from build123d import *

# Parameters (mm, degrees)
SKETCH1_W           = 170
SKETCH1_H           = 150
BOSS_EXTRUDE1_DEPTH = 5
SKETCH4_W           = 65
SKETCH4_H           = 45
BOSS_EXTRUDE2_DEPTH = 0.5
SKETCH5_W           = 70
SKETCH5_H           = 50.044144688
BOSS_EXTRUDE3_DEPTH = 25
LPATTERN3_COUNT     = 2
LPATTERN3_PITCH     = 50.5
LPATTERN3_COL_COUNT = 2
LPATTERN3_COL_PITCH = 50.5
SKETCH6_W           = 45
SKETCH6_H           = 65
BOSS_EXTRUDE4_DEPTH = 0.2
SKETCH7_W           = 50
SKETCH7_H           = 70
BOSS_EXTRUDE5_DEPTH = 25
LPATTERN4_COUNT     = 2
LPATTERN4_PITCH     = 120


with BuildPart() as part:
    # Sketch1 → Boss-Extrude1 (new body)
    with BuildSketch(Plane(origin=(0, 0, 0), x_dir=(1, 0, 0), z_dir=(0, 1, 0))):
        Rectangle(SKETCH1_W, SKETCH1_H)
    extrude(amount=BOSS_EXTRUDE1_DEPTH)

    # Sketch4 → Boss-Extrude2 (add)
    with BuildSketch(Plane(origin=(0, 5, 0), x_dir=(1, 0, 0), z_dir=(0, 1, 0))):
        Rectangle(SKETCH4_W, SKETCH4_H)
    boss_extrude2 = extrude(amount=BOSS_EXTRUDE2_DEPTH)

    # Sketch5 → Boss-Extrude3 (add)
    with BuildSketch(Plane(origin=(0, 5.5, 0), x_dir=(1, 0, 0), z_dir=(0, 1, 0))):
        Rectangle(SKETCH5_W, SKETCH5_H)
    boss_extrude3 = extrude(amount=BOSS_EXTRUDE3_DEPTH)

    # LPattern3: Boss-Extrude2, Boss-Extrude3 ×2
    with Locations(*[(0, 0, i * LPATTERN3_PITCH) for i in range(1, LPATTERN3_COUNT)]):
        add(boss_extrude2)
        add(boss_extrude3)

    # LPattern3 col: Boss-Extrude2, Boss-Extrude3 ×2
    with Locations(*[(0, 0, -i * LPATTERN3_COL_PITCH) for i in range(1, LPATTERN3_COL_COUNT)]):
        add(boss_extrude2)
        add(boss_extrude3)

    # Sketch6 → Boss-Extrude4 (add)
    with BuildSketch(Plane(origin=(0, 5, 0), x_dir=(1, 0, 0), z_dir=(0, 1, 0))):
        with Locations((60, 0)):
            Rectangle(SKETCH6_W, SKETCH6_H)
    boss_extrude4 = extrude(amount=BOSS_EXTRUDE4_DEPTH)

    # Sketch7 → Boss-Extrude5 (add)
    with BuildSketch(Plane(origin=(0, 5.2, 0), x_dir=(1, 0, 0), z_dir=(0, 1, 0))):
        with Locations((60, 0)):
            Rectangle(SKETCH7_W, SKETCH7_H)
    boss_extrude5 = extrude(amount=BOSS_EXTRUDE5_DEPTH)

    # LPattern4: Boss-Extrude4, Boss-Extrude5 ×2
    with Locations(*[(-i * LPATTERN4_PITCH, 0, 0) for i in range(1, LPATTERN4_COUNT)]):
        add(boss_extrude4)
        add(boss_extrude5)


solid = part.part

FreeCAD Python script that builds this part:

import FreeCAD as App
import Part
import Sketcher
from FreeCAD import Vector


def add_polygon(sketch, points):
    """Adds a closed chain of lines whose ends are joined by coincident constraints."""
    first, n = sketch.GeometryCount, len(points)
    for a, b in zip(points, points[1:] + points[:1]):
        sketch.addGeometry(Part.LineSegment(App.Vector(*a, 0), App.Vector(*b, 0)), False)
    for i in range(n):
        sketch.addConstraint(Sketcher.Constraint("Coincident", first + i, 2, first + (i + 1) % n, 1))

doc = App.newDocument("Part")
body = doc.addObject("PartDesign::Body", "Body")

sketch1 = doc.addObject("Sketcher::SketchObject", "Sketch")
body.addObject(sketch1)
sketch1.AttachmentSupport = (doc.XZ_Plane, [""])
sketch1.MapMode = "FlatFace"
add_polygon(sketch1, [(-85, -75), (-85, 75), (85, 75), (85, -75)])
sketch1.addConstraint([
    Sketcher.Constraint("Vertical", 0),
    Sketcher.Constraint("Horizontal", 1),
    Sketcher.Constraint("Vertical", 2),
    Sketcher.Constraint("Horizontal", 3),
    Sketcher.Constraint("Symmetric", 0, 2, 2, 2, -1, 1),
    Sketcher.Constraint("DistanceX", 1, 1, 1, 2, 170.0),
    Sketcher.Constraint("DistanceY", 0, 1, 0, 2, 150.0),
])
pad1 = doc.addObject("PartDesign::Pad", "Pad")
body.addObject(pad1)
pad1.Profile = sketch1
pad1.Length = 5
pad1.Reversed = True

sketch2 = doc.addObject("Sketcher::SketchObject", "Sketch001")
body.addObject(sketch2)
sketch2.AttachmentSupport = (doc.XZ_Plane, [""])
sketch2.MapMode = "FlatFace"
sketch2.AttachmentOffset = App.Placement(Vector(0, 0, -5), App.Rotation())
add_polygon(sketch2, [(-32, -22), (-32, 22), (32, 22), (32, -22)])
sketch2.addConstraint([
    Sketcher.Constraint("Vertical", 0),
    Sketcher.Constraint("Horizontal", 1),
    Sketcher.Constraint("Vertical", 2),
    Sketcher.Constraint("Horizontal", 3),
    Sketcher.Constraint("Symmetric", 0, 2, 2, 2, -1, 1),
    Sketcher.Constraint("DistanceX", 1, 1, 1, 2, 65.0),
    Sketcher.Constraint("DistanceY", 0, 1, 0, 2, 45.0),
])
pad2 = doc.addObject("PartDesign::Pad", "Pad001")
body.addObject(pad2)
pad2.Profile = sketch2
pad2.Length = 0.5
pad2.Reversed = True

sketch3 = doc.addObject("Sketcher::SketchObject", "Sketch002")
body.addObject(sketch3)
sketch3.AttachmentSupport = (doc.XZ_Plane, [""])
sketch3.MapMode = "FlatFace"
sketch3.AttachmentOffset = App.Placement(Vector(0, 0, -5.5), App.Rotation())
add_polygon(sketch3, [(-35, -25), (-35, 25), (35, 25), (35, -25)])
sketch3.addConstraint([
    Sketcher.Constraint("Vertical", 0),
    Sketcher.Constraint("Horizontal", 1),
    Sketcher.Constraint("Vertical", 2),
    Sketcher.Constraint("Horizontal", 3),
    Sketcher.Constraint("Symmetric", 0, 2, 2, 2, -1, 1),
    Sketcher.Constraint("DistanceX", 1, 1, 1, 2, 70.0),
    Sketcher.Constraint("DistanceY", 0, 1, 0, 2, 50.044145),
])
pad3 = doc.addObject("PartDesign::Pad", "Pad002")
body.addObject(pad3)
pad3.Profile = sketch3
pad3.Length = 25
pad3.Reversed = True
doc.recompute()

linearpattern = doc.addObject("PartDesign::LinearPattern", "LinearPattern")
body.addObject(linearpattern)
linearpattern.Originals = [pad2, pad3]
linearpattern.Direction = (doc.Z_Axis, [""])
linearpattern.Mode = "offset"
linearpattern.Offset = 50.5
linearpattern.Occurrences = 2
body.Tip = linearpattern
doc.recompute()

linearpattern2 = doc.addObject("PartDesign::LinearPattern", "LinearPattern001")
body.addObject(linearpattern2)
linearpattern2.Originals = [pad2, pad3]
linearpattern2.Direction = (doc.Z_Axis, [""])
linearpattern2.Mode = "offset"
linearpattern2.Offset = 50.5
linearpattern2.Occurrences = 2
linearpattern2.Reversed = True
body.Tip = linearpattern2

sketch4 = doc.addObject("Sketcher::SketchObject", "Sketch003")
body.addObject(sketch4)
sketch4.AttachmentSupport = (doc.XZ_Plane, [""])
sketch4.MapMode = "FlatFace"
sketch4.AttachmentOffset = App.Placement(Vector(0, 0, -5), App.Rotation())
add_polygon(sketch4, [(38, -32), (38, 32), (82, 32), (82, -32)])
sketch4.addConstraint([
    Sketcher.Constraint("Vertical", 0),
    Sketcher.Constraint("Horizontal", 1),
    Sketcher.Constraint("Vertical", 2),
    Sketcher.Constraint("Horizontal", 3),
    Sketcher.Constraint("DistanceX", 1, 1, 1, 2, 45.0),
    Sketcher.Constraint("DistanceY", 0, 1, 0, 2, 65.0),
    Sketcher.Constraint("DistanceX", -1, 1, 0, 2, 37.5),
    Sketcher.Constraint("DistanceY", -1, 1, 0, 2, 32.5),
])
pad4 = doc.addObject("PartDesign::Pad", "Pad003")
body.addObject(pad4)
pad4.Profile = sketch4
pad4.Length = 0.2
pad4.Reversed = True

sketch5 = doc.addObject("Sketcher::SketchObject", "Sketch004")
body.addObject(sketch5)
sketch5.AttachmentSupport = (doc.XZ_Plane, [""])
sketch5.MapMode = "FlatFace"
sketch5.AttachmentOffset = App.Placement(Vector(0, 0, -5.2), App.Rotation())
add_polygon(sketch5, [(35, -35), (35, 35), (85, 35), (85, -35)])
sketch5.addConstraint([
    Sketcher.Constraint("Vertical", 0),
    Sketcher.Constraint("Horizontal", 1),
    Sketcher.Constraint("Vertical", 2),
    Sketcher.Constraint("Horizontal", 3),
    Sketcher.Constraint("DistanceX", 1, 1, 1, 2, 50.0),
    Sketcher.Constraint("DistanceY", 0, 1, 0, 2, 70.0),
    Sketcher.Constraint("DistanceX", -1, 1, 0, 2, 35.0),
    Sketcher.Constraint("DistanceY", -1, 1, 0, 2, 35.0),
])
pad5 = doc.addObject("PartDesign::Pad", "Pad004")
body.addObject(pad5)
pad5.Profile = sketch5
pad5.Length = 25
pad5.Reversed = True
doc.recompute()

linearpattern3 = doc.addObject("PartDesign::LinearPattern", "LinearPattern002")
body.addObject(linearpattern3)
linearpattern3.Originals = [pad4, pad5]
linearpattern3.Direction = (doc.X_Axis, [""])
linearpattern3.Mode = "offset"
linearpattern3.Offset = 120
linearpattern3.Occurrences = 2
linearpattern3.Reversed = True
body.Tip = linearpattern3

doc.recompute()
